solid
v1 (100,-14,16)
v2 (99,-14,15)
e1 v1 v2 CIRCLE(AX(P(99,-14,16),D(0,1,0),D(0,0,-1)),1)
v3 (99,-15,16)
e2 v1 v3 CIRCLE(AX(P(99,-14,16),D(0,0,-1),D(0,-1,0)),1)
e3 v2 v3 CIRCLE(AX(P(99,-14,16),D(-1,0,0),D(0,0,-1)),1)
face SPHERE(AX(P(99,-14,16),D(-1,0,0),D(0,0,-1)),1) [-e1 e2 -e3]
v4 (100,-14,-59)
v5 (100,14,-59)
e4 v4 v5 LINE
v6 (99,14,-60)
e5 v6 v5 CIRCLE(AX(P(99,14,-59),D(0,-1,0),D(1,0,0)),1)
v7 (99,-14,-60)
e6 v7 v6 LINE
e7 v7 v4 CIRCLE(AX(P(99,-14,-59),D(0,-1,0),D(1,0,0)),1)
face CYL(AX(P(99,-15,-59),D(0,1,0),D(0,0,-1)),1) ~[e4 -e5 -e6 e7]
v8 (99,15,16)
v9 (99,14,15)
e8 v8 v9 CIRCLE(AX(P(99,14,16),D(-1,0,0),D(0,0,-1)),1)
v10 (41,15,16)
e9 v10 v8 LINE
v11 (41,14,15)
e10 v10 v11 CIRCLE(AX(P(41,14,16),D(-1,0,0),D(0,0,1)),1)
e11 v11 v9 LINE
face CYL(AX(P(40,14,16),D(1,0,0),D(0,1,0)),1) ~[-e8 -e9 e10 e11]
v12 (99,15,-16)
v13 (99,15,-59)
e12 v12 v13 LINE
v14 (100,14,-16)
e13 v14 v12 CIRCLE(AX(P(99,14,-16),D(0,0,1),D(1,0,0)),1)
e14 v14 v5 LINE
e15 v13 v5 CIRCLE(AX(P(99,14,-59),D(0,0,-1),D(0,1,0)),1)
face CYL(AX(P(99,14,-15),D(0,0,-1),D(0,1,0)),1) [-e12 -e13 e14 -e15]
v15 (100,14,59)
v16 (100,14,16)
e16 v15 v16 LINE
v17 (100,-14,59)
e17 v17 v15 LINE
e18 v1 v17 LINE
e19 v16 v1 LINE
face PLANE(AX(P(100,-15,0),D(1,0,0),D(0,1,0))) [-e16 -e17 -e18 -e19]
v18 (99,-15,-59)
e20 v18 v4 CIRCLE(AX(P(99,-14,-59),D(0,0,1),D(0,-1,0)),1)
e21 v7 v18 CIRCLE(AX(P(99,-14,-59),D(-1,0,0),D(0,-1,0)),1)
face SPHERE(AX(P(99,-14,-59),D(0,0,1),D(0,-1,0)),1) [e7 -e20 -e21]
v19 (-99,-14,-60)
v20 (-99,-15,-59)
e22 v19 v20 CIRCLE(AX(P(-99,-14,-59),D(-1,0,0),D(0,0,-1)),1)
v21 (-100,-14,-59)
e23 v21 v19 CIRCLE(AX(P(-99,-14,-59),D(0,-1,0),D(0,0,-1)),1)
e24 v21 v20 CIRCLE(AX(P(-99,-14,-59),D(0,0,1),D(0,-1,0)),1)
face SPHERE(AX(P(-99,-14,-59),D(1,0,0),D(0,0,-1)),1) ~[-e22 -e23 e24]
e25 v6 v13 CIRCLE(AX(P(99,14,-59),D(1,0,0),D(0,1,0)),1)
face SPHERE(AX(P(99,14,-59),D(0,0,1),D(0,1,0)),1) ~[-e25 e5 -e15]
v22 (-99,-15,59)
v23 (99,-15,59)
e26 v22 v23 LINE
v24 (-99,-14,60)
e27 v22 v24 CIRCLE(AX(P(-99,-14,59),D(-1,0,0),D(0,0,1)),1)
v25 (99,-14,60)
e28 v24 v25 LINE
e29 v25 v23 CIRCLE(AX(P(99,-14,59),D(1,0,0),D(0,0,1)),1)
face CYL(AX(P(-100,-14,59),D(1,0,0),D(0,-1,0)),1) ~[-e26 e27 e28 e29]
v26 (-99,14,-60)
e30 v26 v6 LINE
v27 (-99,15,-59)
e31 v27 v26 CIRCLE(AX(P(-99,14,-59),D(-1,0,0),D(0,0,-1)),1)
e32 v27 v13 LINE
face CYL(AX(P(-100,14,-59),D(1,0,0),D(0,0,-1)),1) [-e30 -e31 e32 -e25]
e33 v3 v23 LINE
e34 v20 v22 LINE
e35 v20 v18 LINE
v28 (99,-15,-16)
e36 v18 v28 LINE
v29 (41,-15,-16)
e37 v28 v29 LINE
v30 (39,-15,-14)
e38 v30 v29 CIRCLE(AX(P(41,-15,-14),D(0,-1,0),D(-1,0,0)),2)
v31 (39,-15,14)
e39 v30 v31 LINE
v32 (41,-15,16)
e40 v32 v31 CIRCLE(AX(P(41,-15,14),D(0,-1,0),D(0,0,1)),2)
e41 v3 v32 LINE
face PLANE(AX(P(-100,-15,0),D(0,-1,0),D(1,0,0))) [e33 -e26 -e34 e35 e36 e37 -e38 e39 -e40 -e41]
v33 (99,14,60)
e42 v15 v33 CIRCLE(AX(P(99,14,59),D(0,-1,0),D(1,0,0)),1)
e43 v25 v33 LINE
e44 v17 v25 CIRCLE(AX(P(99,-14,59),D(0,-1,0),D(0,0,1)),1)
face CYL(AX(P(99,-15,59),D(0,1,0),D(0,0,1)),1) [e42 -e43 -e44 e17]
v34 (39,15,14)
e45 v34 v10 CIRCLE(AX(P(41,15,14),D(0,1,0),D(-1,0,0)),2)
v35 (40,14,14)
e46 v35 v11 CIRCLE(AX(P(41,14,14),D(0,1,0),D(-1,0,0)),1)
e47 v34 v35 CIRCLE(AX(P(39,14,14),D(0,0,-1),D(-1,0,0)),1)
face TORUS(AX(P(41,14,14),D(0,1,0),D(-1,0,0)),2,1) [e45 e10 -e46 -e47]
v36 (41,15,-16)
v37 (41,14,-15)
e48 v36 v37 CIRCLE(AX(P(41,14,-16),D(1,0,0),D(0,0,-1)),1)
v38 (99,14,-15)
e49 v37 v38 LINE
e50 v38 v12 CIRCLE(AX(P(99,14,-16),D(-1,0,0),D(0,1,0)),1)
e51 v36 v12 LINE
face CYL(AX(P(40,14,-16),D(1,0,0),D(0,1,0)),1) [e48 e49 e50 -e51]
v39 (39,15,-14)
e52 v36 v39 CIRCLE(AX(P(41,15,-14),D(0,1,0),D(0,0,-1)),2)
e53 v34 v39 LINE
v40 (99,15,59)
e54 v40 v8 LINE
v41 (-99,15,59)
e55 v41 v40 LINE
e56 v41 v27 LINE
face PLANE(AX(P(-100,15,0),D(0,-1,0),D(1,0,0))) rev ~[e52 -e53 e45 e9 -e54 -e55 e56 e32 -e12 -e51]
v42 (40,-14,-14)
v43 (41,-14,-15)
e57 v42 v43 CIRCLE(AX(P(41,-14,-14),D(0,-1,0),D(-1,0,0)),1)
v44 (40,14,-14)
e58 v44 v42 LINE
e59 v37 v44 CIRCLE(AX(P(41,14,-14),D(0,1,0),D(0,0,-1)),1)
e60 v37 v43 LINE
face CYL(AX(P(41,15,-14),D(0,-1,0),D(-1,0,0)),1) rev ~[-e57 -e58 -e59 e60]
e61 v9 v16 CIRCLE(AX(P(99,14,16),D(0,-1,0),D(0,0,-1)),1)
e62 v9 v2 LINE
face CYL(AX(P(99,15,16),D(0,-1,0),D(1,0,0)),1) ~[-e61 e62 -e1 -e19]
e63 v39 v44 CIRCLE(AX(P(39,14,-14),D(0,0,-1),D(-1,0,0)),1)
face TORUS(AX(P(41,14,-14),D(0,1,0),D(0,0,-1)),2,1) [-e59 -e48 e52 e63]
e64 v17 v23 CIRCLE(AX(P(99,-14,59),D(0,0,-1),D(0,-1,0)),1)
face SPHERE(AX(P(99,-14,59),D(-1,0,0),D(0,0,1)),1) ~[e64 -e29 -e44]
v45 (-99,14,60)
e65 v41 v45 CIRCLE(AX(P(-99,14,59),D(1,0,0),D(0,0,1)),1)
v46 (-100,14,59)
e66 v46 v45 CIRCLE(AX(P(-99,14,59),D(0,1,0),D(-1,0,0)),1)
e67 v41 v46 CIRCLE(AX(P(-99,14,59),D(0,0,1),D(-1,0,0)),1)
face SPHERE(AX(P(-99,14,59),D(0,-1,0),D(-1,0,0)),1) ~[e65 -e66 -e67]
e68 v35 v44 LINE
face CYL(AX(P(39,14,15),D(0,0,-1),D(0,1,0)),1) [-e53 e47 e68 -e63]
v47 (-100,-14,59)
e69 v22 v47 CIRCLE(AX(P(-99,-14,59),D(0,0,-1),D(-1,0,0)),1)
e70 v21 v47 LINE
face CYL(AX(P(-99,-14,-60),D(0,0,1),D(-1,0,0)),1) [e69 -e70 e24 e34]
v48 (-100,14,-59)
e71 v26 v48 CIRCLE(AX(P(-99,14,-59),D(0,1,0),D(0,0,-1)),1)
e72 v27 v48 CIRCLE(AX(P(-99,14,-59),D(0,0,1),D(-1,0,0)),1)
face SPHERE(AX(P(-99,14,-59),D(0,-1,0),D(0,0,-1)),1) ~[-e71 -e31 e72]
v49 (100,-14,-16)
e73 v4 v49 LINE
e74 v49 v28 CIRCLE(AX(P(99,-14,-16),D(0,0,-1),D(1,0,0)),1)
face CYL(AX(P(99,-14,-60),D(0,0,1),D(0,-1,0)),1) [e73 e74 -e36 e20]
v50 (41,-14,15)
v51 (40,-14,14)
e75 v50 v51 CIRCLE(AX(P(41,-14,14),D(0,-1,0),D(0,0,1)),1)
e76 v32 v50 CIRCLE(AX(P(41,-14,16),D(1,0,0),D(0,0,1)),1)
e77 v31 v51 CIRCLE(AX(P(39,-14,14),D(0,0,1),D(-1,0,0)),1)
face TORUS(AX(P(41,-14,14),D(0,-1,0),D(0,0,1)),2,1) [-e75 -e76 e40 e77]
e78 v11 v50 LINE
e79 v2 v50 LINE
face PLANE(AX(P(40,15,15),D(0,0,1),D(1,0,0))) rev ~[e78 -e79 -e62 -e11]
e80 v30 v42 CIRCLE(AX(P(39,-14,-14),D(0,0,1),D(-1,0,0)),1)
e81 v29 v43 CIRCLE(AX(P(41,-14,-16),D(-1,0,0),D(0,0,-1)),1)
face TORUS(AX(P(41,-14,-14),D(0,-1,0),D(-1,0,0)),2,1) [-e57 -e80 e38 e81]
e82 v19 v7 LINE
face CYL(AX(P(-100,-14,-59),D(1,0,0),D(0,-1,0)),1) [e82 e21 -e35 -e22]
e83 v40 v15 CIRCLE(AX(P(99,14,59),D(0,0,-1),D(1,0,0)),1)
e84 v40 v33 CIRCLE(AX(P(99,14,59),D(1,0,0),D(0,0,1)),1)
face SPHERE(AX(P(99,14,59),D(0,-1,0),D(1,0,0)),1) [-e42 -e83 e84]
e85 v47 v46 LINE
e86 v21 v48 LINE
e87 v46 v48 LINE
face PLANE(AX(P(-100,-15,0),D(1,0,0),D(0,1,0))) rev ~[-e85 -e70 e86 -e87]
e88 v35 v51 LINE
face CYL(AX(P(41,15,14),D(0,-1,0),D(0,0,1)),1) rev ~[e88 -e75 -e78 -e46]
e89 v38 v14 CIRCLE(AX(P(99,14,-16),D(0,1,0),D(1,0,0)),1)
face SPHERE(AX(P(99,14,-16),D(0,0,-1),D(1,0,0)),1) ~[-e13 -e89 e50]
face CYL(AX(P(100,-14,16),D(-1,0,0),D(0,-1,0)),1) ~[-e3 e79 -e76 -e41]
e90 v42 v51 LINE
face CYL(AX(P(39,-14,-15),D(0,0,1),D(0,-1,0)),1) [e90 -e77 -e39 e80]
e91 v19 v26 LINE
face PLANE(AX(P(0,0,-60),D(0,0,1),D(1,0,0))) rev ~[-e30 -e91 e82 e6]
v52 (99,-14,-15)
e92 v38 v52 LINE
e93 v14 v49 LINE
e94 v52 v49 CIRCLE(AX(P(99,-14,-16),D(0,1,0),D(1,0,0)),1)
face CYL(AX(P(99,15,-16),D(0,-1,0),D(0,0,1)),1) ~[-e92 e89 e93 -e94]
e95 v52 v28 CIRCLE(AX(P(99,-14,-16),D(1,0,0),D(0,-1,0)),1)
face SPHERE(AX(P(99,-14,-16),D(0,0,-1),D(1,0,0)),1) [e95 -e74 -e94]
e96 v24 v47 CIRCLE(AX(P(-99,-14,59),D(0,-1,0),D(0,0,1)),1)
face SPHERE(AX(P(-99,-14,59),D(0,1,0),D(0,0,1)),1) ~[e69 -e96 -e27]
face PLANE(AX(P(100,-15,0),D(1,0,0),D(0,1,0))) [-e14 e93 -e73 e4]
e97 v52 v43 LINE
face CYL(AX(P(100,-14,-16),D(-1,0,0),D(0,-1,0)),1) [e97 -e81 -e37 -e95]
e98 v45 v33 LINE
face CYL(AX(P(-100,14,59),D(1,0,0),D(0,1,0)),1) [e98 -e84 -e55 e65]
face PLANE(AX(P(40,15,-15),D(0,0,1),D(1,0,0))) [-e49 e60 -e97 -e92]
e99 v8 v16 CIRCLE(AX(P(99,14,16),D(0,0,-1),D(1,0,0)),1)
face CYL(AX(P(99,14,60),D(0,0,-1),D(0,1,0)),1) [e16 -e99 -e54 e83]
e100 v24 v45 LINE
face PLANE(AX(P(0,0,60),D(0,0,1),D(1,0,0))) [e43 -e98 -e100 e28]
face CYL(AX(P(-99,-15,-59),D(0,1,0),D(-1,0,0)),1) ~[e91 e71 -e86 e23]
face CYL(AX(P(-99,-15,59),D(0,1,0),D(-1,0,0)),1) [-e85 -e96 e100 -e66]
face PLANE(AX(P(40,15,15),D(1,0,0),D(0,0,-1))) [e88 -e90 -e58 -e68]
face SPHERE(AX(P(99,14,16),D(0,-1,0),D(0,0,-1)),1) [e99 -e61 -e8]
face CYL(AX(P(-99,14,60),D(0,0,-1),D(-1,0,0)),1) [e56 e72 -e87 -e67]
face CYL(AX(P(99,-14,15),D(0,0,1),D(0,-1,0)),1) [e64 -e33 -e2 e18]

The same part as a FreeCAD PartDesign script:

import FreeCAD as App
import Part
import Sketcher
from FreeCAD import Vector

doc = App.newDocument("Part")
body = doc.addObject("PartDesign::Body", "Body")

# Sketch on XY plane
sketch1 = body.newObject("Sketcher::SketchObject", "Sketch")
sketch1.AttachmentSupport = (doc.getObject("XY_Plane"), [""])
sketch1.MapMode = "FlatFace"
sketch1.addGeometry(Part.LineSegment(Vector(-100, 15, 0), Vector(-100, -15, 0)), False)
sketch1.addGeometry(Part.LineSegment(Vector(-100, -15, 0), Vector(100, -15, 0)), False)
sketch1.addGeometry(Part.LineSegment(Vector(100, -15, 0), Vector(100, 15, 0)), False)
sketch1.addGeometry(Part.LineSegment(Vector(100, 15, 0), Vector(-100, 15, 0)), False)
sketch1.addConstraint(Sketcher.Constraint("Coincident", 0, 2, 1, 1))
sketch1.addConstraint(Sketcher.Constraint("Coincident", 1, 2, 2, 1))
sketch1.addConstraint(Sketcher.Constraint("Coincident", 2, 2, 3, 1))
sketch1.addConstraint(Sketcher.Constraint("Coincident", 3, 2, 0, 1))
sketch1.addConstraint(Sketcher.Constraint("Vertical", 0))
sketch1.addConstraint(Sketcher.Constraint("Horizontal", 1))
sketch1.addConstraint(Sketcher.Constraint("Vertical", 2))
sketch1.addConstraint(Sketcher.Constraint("Horizontal", 3))
sketch1.addConstraint(Sketcher.Constraint("Symmetric", 0, 2, 2, 2, -1, 1))
sketch1.addConstraint(Sketcher.Constraint("DistanceX", 1, 1, 1, 2, 200.0))
sketch1.addConstraint(Sketcher.Constraint("DistanceY", 0, 2, 0, 1, 30.0))
pad1 = body.newObject("PartDesign::Pad", "Pad")
pad1.Profile = sketch1
pad1.Length = 120
pad1.Midplane = True

# Sketch on XZ plane
sketch2 = body.newObject("Sketcher::SketchObject", "Sketch001")
sketch2.AttachmentSupport = (doc.getObject("XZ_Plane"), [""])
sketch2.MapMode = "FlatFace"
sketch2.AttachmentOffset = App.Placement(Vector(0, 0, -15), App.Rotation())
sketch2.addGeometry(Part.LineSegment(Vector(40, -15, 0), Vector(40, 15, 0)), False)
sketch2.addGeometry(Part.LineSegment(Vector(40, 15, 0), Vector(100, 15, 0)), False)
sketch2.addGeometry(Part.LineSegment(Vector(100, 15, 0), Vector(100, -15, 0)), False)
sketch2.addGeometry(Part.LineSegment(Vector(100, -15, 0), Vector(40, -15, 0)), False)
sketch2.addConstraint(Sketcher.Constraint("Coincident", 0, 2, 1, 1))
sketch2.addConstraint(Sketcher.Constraint("Coincident", 1, 2, 2, 1))
sketch2.addConstraint(Sketcher.Constraint("Coincident", 2, 2, 3, 1))
sketch2.addConstraint(Sketcher.Constraint("Coincident", 3, 2, 0, 1))
sketch2.addConstraint(Sketcher.Constraint("Vertical", 0))
sketch2.addConstraint(Sketcher.Constraint("Horizontal", 1))
sketch2.addConstraint(Sketcher.Constraint("Vertical", 2))
sketch2.addConstraint(Sketcher.Constraint("Horizontal", 3))
sketch2.addConstraint(Sketcher.Constraint("DistanceX", 1, 1, 1, 2, 60.0))
sketch2.addConstraint(Sketcher.Constraint("DistanceY", 0, 1, 0, 2, 30.0))
sketch2.addConstraint(Sketcher.Constraint("DistanceX", -1, 1, 0, 2, 40.0))
sketch2.addConstraint(Sketcher.Constraint("DistanceY", -1, 1, 0, 2, 15.0))
pocket1 = body.newObject("PartDesign::Pocket", "Pocket")
pocket1.Profile = sketch2
pocket1.Type = "ThroughAll"
pocket1.Reversed = True
doc.recompute()

fillet = body.newObject("PartDesign::Fillet", "Fillet")
fillet.Base = (pocket1, ["Edge1"])
fillet.UseAllEdges = True
fillet.Radius = 1

doc.recompute()
